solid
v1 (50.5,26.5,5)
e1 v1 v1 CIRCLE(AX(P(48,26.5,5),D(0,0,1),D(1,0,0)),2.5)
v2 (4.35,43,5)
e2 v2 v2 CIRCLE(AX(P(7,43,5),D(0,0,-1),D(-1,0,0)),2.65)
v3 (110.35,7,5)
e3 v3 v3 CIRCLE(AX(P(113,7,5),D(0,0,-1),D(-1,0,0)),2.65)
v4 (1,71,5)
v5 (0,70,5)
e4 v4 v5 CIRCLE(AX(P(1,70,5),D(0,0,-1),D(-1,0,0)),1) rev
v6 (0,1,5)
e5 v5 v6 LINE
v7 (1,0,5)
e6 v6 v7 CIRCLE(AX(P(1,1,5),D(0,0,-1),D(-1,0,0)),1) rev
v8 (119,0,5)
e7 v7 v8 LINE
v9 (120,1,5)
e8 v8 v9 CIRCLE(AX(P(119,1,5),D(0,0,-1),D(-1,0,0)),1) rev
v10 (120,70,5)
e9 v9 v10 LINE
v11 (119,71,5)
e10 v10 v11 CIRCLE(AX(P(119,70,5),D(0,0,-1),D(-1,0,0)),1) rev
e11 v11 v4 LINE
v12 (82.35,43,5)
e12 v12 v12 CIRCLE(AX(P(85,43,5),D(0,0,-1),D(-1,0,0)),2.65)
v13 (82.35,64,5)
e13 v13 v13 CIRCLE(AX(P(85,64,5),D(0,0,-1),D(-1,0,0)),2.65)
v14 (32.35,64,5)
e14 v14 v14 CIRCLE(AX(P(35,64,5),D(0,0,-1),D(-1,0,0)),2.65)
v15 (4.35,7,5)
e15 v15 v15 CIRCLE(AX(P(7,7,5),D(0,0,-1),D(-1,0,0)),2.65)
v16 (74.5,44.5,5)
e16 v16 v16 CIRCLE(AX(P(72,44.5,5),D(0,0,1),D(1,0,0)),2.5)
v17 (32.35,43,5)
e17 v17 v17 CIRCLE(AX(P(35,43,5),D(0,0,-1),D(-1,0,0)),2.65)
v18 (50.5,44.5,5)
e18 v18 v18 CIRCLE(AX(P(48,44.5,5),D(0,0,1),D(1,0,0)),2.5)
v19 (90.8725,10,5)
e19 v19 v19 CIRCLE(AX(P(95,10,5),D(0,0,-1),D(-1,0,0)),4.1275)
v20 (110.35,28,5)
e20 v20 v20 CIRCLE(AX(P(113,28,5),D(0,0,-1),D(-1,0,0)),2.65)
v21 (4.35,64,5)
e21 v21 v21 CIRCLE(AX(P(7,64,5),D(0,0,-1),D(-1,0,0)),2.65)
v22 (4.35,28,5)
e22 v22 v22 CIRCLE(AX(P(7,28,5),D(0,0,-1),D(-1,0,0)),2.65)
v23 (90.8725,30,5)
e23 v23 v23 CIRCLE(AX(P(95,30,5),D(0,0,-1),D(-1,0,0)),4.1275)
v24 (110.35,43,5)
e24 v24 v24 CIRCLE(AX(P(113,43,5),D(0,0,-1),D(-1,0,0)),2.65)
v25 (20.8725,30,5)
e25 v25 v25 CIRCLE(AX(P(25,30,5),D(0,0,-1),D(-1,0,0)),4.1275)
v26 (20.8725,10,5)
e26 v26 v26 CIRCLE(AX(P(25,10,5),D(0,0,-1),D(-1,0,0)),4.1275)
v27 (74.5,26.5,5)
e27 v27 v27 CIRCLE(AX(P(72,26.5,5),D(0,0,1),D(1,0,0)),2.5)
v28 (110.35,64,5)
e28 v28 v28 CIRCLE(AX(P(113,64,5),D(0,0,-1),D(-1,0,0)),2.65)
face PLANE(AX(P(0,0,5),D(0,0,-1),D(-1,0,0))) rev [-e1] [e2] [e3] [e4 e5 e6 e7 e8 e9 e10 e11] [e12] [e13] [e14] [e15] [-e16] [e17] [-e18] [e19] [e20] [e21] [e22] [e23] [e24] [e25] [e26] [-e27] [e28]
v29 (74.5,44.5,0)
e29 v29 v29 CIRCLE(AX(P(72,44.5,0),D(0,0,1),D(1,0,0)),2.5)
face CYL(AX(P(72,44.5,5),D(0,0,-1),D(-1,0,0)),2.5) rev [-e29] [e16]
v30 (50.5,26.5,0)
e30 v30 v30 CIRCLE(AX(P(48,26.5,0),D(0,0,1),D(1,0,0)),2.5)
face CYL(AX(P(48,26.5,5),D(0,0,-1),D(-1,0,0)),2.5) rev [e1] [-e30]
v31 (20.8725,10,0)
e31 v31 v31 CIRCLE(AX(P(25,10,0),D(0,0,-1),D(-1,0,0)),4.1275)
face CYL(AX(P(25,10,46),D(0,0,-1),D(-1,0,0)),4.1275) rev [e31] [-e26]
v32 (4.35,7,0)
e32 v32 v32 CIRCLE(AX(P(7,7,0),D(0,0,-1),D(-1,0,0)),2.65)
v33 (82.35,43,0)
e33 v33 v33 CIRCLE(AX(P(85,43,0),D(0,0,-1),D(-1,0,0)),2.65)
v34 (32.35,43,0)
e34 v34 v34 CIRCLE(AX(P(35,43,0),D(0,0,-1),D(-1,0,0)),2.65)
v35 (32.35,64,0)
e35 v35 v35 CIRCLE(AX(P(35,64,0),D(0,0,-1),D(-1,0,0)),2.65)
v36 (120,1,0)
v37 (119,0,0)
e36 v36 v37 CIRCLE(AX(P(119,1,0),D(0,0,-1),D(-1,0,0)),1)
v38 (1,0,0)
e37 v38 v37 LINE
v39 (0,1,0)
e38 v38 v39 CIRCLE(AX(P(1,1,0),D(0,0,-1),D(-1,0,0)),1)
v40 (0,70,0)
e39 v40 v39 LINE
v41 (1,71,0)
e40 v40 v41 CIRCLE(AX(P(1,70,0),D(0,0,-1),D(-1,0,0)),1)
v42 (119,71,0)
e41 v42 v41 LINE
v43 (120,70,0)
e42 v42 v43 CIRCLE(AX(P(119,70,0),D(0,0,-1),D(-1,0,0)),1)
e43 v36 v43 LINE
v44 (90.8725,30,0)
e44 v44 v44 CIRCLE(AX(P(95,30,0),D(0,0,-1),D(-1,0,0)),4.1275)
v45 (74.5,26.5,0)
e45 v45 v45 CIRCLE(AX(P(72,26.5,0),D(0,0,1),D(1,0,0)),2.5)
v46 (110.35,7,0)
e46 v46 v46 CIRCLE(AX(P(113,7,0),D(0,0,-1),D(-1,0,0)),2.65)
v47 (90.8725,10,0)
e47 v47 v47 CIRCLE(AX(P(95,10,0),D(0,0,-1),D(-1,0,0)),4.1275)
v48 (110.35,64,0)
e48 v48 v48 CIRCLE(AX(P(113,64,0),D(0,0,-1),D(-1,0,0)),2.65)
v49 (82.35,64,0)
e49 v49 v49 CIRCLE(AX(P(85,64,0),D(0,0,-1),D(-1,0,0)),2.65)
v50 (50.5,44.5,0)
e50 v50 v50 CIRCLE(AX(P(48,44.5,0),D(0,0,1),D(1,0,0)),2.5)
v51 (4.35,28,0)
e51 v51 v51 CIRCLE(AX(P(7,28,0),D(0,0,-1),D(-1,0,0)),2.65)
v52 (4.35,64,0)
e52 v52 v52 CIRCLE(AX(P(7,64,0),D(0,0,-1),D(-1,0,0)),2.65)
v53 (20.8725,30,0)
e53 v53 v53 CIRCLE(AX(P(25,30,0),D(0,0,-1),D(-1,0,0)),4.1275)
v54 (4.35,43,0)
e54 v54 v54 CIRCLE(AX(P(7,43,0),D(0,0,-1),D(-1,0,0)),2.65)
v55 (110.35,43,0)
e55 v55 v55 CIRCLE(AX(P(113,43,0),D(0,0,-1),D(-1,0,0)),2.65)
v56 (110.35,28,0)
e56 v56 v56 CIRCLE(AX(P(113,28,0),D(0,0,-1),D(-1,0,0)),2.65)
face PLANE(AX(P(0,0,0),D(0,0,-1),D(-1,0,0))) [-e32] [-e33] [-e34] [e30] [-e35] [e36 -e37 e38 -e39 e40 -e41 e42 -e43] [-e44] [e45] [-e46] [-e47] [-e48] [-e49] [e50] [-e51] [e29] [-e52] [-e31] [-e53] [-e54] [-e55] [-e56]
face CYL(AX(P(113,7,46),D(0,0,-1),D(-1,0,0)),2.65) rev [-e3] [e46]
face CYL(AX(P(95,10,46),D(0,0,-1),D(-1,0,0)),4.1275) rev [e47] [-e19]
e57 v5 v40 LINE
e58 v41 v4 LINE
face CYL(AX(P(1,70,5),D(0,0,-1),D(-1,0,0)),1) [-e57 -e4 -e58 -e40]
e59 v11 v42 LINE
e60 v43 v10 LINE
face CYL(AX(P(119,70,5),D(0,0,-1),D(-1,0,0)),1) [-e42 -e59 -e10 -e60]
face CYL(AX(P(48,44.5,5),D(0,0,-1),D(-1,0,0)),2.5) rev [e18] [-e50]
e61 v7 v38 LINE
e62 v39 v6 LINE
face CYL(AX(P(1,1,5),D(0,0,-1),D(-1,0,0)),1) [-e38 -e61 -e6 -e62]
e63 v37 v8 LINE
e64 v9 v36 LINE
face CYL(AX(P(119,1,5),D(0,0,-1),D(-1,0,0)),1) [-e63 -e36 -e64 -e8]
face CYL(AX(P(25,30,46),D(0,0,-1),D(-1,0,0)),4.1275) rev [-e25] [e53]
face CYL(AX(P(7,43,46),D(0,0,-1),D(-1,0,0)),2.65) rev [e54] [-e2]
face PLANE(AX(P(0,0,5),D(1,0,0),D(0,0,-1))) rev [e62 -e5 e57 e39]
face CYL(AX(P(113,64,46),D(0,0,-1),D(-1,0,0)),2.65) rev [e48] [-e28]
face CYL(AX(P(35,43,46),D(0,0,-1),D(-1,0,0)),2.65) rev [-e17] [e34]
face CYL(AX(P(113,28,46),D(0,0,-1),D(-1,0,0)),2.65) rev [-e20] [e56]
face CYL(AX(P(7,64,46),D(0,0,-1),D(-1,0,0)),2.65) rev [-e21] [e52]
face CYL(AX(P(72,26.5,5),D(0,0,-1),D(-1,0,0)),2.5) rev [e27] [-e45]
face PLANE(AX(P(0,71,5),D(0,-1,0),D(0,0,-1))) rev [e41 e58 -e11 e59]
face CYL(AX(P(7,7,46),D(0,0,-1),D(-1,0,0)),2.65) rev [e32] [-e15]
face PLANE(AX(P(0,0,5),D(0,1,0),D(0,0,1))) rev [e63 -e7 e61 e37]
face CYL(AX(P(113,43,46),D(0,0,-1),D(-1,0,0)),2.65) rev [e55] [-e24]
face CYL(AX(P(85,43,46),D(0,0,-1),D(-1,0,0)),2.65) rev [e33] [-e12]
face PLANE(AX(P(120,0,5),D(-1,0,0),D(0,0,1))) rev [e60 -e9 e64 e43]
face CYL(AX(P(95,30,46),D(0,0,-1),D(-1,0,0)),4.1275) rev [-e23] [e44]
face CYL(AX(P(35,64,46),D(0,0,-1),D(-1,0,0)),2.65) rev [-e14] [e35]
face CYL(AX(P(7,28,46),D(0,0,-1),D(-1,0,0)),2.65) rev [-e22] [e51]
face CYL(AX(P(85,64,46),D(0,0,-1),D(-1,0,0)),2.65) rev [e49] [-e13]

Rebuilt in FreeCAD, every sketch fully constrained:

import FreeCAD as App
import Part
import Sketcher
from FreeCAD import Vector


def edges_at(feature, points):
    """Names of the edges that pass closest to the given points."""
    edges = feature.Shape.Edges
    near = lambda p: min(range(len(edges)), key=lambda i: edges[i].distToShape(Part.Vertex(*p))[0])
    return sorted({f"Edge{near(p) + 1}" for p in points})


def add_polygon(sketch, points):
    """Adds a closed chain of lines whose ends are joined by coincident constraints."""
    first, n = sketch.GeometryCount, len(points)
    for a, b in zip(points, points[1:] + points[:1]):
        sketch.addGeometry(Part.LineSegment(App.Vector(*a, 0), App.Vector(*b, 0)), False)
    for i in range(n):
        sketch.addConstraint(Sketcher.Constraint("Coincident", first + i, 2, first + (i + 1) % n, 1))

doc = App.newDocument("Part")
body = doc.addObject("PartDesign::Body", "Body")

sketch1 = body.newObject("Sketcher::SketchObject", "Sketch")
sketch1.AttachmentSupport = (doc.getObject("XY_Plane"), [""])
sketch1.MapMode = "FlatFace"
add_polygon(sketch1, [(0, 71), (0, 0), (120, 0), (120, 71)])
sketch1.addGeometry(Part.Circle(Vector(48, 26.5, 0), Vector(0, 0, 1), 2.5), False)
sketch1.addGeometry(Part.Circle(Vector(72, 26.5, 0), Vector(0, 0, 1), 2.5), False)
sketch1.addGeometry(Part.Circle(Vector(48, 44.5, 0), Vector(0, 0, 1), 2.5), False)
sketch1.addGeometry(Part.Circle(Vector(72, 44.5, 0), Vector(0, 0, 1), 2.5), False)
sketch1.addConstraint(Sketcher.Constraint("Vertical", 0))
sketch1.addConstraint(Sketcher.Constraint("Horizontal", 1))
sketch1.addConstraint(Sketcher.Constraint("Vertical", 2))
sketch1.addConstraint(Sketcher.Constraint("Horizontal", 3))
sketch1.addConstraint(Sketcher.Constraint("Coincident", 0, 2, -1, 1))
sketch1.addConstraint(Sketcher.Constraint("Equal", 4, 5))
sketch1.addConstraint(Sketcher.Constraint("Equal", 5, 6))
sketch1.addConstraint(Sketcher.Constraint("Equal", 6, 7))
sketch1.addConstraint(Sketcher.Constraint("Horizontal", 4, 3, 5, 3))
sketch1.addConstraint(Sketcher.Constraint("Horizontal", 6, 3, 7, 3))
sketch1.addConstraint(Sketcher.Constraint("Vertical", 4, 3, 6, 3))
sketch1.addConstraint(Sketcher.Constraint("Vertical", 5, 3, 7, 3))
sketch1.addConstraint(Sketcher.Constraint("Diameter", 4, 5.0))
sketch1.addConstraint(Sketcher.Constraint("DistanceX", 1, 1, 1, 2, 120.0))
sketch1.addConstraint(Sketcher.Constraint("DistanceY", 0, 2, 0, 1, 71.0))
sketch1.addConstraint(Sketcher.Constraint("DistanceX", -1, 1, 4, 3, 48.0))
sketch1.addConstraint(Sketcher.Constraint("DistanceX", -1, 1, 5, 3, 72.0))
sketch1.addConstraint(Sketcher.Constraint("DistanceY", 4, 3, 6, 3, 18.0))
sketch1.addConstraint(Sketcher.Constraint("DistanceY", -1, 1, 4, 3, 26.5))
pad1 = body.newObject("PartDesign::Pad", "Pad")
pad1.Profile = sketch1
pad1.Length = 5
doc.recompute()

fillet = body.newObject("PartDesign::Fillet", "Fillet")
fillet.Base = (pad1, edges_at(pad1, [
    (0, 71, 2.5),
    (120, 71, 2.5),
    (120, 0, 2.5),
    (0, 0, 2.5),
]))
fillet.Radius = 1

sketch2 = body.newObject("Sketcher::SketchObject", "Sketch001")
sketch2.AttachmentSupport = (doc.getObject("XY_Plane"), [""])
sketch2.MapMode = "FlatFace"
sketch2.addGeometry(Part.Circle(Vector(113, 64, 0), Vector(0, 0, 1), 2.65), False)
sketch2.addGeometry(Part.Circle(Vector(113, 43, 0), Vector(0, 0, 1), 2.65), False)
sketch2.addGeometry(Part.Circle(Vector(85, 64, 0), Vector(0, 0, 1), 2.65), False)
sketch2.addGeometry(Part.Circle(Vector(113, 28, 0), Vector(0, 0, 1), 2.65), False)
sketch2.addGeometry(Part.Circle(Vector(113, 7, 0), Vector(0, 0, 1), 2.65), False)
sketch2.addGeometry(Part.Circle(Vector(7, 7, 0), Vector(0, 0, 1), 2.65), False)
sketch2.addGeometry(Part.Circle(Vector(7, 28, 0), Vector(0, 0, 1), 2.65), False)
sketch2.addGeometry(Part.Circle(Vector(7, 64, 0), Vector(0, 0, 1), 2.65), False)
sketch2.addGeometry(Part.Circle(Vector(7, 43, 0), Vector(0, 0, 1), 2.65), False)
sketch2.addGeometry(Part.Circle(Vector(35, 64, 0), Vector(0, 0, 1), 2.65), False)
sketch2.addGeometry(Part.Circle(Vector(35, 43, 0), Vector(0, 0, 1), 2.65), False)
sketch2.addGeometry(Part.Circle(Vector(85, 43, 0), Vector(0, 0, 1), 2.65), False)
sketch2.addGeometry(Part.Circle(Vector(25, 30, 0), Vector(0, 0, 1), 4.1275), False)
sketch2.addGeometry(Part.Circle(Vector(25, 10, 0), Vector(0, 0, 1), 4.1275), False)
sketch2.addGeometry(Part.Circle(Vector(95, 10, 0), Vector(0, 0, 1), 4.1275), False)
sketch2.addGeometry(Part.Circle(Vector(95, 30, 0), Vector(0, 0, 1), 4.1275), False)
sketch2.addConstraint(Sketcher.Constraint("Equal", 0, 1))
sketch2.addConstraint(Sketcher.Constraint("Equal", 1, 2))
sketch2.addConstraint(Sketcher.Constraint("Equal", 2, 3))
sketch2.addConstraint(Sketcher.Constraint("Equal", 3, 4))
sketch2.addConstraint(Sketcher.Constraint("Equal", 4, 5))
sketch2.addConstraint(Sketcher.Constraint("Equal", 5, 6))
sketch2.addConstraint(Sketcher.Constraint("Equal", 6, 7))
sketch2.addConstraint(Sketcher.Constraint("Equal", 7, 8))
sketch2.addConstraint(Sketcher.Constraint("Equal", 8, 9))
sketch2.addConstraint(Sketcher.Constraint("Equal", 9, 10))
sketch2.addConstraint(Sketcher.Constraint("Equal", 10, 11))
sketch2.addConstraint(Sketcher.Constraint("Equal", 12, 13))
sketch2.addConstraint(Sketcher.Constraint("Equal", 13, 14))
sketch2.addConstraint(Sketcher.Constraint("Equal", 14, 15))
sketch2.addConstraint(Sketcher.Constraint("Horizontal", 0, 3, 2, 3))
sketch2.addConstraint(Sketcher.Constraint("Horizontal", 4, 3, 5, 3))
sketch2.addConstraint(Sketcher.Constraint("Horizontal", 3, 3, 6, 3))
sketch2.addConstraint(Sketcher.Constraint("Horizontal", 2, 3, 7, 3))
sketch2.addConstraint(Sketcher.Constraint("Horizontal", 1, 3, 8, 3))
sketch2.addConstraint(Sketcher.Constraint("Horizontal", 7, 3, 9, 3))
sketch2.addConstraint(Sketcher.Constraint("Horizontal", 8, 3, 10, 3))
sketch2.addConstraint(Sketcher.Constraint("Horizontal", 10, 3, 11, 3))
sketch2.addConstraint(Sketcher.Constraint("Horizontal", 13, 3, 14, 3))
sketch2.addConstraint(Sketcher.Constraint("Horizontal", 12, 3, 15, 3))
sketch2.addConstraint(Sketcher.Constraint("Vertical", 0, 3, 1, 3))
sketch2.addConstraint(Sketcher.Constraint("Vertical", 1, 3, 3, 3))
sketch2.addConstraint(Sketcher.Constraint("Vertical", 3, 3, 4, 3))
sketch2.addConstraint(Sketcher.Constraint("Vertical", 5, 3, 6, 3))
sketch2.addConstraint(Sketcher.Constraint("Vertical", 6, 3, 7, 3))
sketch2.addConstraint(Sketcher.Constraint("Vertical", 7, 3, 8, 3))
sketch2.addConstraint(Sketcher.Constraint("Vertical", 9, 3, 10, 3))
sketch2.addConstraint(Sketcher.Constraint("Vertical", 2, 3, 11, 3))
sketch2.addConstraint(Sketcher.Constraint("Vertical", 12, 3, 13, 3))
sketch2.addConstraint(Sketcher.Constraint("Vertical", 14, 3, 15, 3))
sketch2.addConstraint(Sketcher.Constraint("Diameter", 0, 5.3))
sketch2.addConstraint(Sketcher.Constraint("Diameter", 12, 8.255))
sketch2.addConstraint(Sketcher.Constraint("DistanceX", -1, 1, 0, 3, 113.0))
sketch2.addConstraint(Sketcher.Constraint("DistanceY", -1, 1, 0, 3, 64.0))
sketch2.addConstraint(Sketcher.Constraint("DistanceY", -1, 1, 1, 3, 43.0))
sketch2.addConstraint(Sketcher.Constraint("DistanceX", -1, 1, 2, 3, 85.0))
sketch2.addConstraint(Sketcher.Constraint("DistanceY", -1, 1, 3, 3, 28.0))
sketch2.addConstraint(Sketcher.Constraint("DistanceY", -1, 1, 4, 3, 7.0))
sketch2.addConstraint(Sketcher.Constraint("DistanceX", -1, 1, 5, 3, 7.0))
sketch2.addConstraint(Sketcher.Constraint("DistanceX", -1, 1, 9, 3, 35.0))
sketch2.addConstraint(Sketcher.Constraint("DistanceX", -1, 1, 12, 3, 25.0))
sketch2.addConstraint(Sketcher.Constraint("DistanceY", -1, 1, 12, 3, 30.0))
sketch2.addConstraint(Sketcher.Constraint("DistanceY", -1, 1, 13, 3, 10.0))
sketch2.addConstraint(Sketcher.Constraint("DistanceX", -1, 1, 14, 3, 95.0))
pocket1 = body.newObject("PartDesign::Pocket", "Pocket")
pocket1.Profile = sketch2
pocket1.Type = "ThroughAll"
pocket1.Midplane = True

doc.recompute()
